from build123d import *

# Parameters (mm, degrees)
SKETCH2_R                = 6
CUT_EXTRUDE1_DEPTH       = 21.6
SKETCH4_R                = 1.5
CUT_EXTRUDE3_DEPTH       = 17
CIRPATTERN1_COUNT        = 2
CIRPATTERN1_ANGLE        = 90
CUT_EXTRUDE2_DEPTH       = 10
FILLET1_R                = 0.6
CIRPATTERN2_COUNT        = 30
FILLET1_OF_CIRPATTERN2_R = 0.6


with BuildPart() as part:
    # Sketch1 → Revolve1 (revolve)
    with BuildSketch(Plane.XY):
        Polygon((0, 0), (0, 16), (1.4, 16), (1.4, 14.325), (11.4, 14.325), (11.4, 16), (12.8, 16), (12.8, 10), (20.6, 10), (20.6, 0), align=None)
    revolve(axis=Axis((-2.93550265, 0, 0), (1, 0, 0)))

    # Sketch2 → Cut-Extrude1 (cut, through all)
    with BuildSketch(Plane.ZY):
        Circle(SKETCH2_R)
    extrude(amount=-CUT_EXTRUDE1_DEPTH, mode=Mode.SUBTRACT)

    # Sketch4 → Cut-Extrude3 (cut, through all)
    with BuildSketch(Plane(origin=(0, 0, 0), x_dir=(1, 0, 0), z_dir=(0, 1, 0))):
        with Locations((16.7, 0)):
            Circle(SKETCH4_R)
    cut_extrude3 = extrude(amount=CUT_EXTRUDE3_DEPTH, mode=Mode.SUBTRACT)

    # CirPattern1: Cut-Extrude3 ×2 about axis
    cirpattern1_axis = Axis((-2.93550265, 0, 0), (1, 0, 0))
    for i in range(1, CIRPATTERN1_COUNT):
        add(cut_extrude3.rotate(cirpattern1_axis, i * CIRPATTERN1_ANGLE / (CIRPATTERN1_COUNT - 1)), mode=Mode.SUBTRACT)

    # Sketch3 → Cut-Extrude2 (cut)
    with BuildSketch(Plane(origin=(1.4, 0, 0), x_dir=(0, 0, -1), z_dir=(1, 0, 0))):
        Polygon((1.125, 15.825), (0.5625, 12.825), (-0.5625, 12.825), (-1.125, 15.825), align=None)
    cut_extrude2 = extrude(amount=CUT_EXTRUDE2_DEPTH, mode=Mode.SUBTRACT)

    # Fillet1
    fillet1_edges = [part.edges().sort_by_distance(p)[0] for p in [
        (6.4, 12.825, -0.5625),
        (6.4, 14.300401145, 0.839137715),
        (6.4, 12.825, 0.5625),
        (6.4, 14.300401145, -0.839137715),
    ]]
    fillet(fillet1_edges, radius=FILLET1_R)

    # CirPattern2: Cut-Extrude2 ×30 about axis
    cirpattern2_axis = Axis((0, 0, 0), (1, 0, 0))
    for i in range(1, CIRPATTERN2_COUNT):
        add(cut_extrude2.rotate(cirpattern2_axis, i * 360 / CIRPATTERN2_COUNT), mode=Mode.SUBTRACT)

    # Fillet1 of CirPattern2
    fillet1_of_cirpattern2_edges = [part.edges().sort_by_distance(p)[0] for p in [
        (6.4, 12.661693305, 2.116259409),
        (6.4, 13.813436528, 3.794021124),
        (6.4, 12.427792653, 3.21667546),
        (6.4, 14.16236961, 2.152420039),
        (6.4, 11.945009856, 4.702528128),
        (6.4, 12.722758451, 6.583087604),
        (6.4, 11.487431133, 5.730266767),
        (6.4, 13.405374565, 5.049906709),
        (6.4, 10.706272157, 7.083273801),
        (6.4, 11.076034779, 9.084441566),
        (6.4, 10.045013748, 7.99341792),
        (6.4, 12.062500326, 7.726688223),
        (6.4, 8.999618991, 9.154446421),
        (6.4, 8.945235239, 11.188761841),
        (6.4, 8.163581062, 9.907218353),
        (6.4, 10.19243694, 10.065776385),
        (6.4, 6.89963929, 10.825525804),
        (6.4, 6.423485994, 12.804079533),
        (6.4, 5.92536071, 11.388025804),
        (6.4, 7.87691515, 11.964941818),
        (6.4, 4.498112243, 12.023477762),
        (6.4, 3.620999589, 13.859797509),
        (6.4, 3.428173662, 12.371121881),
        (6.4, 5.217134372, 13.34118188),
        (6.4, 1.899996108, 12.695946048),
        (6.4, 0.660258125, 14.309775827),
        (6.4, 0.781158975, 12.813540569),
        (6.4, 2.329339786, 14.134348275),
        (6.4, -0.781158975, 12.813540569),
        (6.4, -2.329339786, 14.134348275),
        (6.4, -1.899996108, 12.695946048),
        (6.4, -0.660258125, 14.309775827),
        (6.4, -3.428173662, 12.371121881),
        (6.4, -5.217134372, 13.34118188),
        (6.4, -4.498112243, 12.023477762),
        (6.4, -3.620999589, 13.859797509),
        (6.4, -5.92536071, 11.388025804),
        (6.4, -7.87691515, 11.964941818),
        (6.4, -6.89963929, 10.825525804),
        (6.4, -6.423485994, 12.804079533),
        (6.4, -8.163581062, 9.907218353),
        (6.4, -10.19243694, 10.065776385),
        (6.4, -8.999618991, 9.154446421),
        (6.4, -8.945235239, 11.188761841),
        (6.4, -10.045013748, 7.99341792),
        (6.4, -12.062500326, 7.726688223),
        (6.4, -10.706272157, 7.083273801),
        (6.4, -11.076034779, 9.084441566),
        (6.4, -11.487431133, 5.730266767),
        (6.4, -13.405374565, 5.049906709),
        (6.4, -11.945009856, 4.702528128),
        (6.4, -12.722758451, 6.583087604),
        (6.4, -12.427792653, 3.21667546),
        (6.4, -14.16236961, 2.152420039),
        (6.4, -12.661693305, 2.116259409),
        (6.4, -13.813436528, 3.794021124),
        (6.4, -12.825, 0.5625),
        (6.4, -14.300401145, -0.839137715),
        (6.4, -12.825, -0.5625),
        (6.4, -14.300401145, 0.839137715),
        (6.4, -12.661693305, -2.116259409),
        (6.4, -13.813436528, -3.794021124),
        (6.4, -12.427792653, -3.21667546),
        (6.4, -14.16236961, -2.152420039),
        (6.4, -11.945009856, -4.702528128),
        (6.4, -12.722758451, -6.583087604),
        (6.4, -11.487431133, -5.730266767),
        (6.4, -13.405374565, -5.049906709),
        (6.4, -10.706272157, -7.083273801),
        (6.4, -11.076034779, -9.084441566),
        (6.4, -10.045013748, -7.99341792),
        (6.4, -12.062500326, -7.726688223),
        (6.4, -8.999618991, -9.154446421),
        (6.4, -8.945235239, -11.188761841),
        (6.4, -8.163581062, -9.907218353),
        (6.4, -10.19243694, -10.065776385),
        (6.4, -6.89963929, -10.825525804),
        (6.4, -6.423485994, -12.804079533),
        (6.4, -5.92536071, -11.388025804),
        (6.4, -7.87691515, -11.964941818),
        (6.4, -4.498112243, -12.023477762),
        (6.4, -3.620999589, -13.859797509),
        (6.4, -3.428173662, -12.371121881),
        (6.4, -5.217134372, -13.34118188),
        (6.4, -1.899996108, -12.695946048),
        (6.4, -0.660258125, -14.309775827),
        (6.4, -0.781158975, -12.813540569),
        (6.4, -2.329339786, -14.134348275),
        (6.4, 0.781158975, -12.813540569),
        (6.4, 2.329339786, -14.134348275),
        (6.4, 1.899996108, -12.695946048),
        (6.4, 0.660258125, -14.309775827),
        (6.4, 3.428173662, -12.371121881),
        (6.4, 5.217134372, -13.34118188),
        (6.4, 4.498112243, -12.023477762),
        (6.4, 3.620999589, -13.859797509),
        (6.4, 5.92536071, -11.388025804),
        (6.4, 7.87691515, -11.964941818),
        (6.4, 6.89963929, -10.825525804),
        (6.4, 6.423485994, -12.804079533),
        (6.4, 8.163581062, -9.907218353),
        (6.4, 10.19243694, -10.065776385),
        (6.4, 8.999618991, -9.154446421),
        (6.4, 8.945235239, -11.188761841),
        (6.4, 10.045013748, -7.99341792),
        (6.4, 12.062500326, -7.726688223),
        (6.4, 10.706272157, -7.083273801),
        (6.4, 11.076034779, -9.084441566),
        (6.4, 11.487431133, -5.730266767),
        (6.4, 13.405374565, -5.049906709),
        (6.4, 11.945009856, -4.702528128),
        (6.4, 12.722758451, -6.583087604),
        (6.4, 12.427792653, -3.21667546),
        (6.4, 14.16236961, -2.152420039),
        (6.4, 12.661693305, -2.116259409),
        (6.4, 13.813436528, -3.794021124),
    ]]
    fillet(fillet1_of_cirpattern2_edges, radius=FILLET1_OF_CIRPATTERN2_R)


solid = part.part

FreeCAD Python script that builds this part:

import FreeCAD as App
import Part
import Sketcher
from FreeCAD import Vector


def edges_at(feature, points):
    """Names of the edges that pass closest to the given points."""
    edges = feature.Shape.Edges
    near = lambda p: min(range(len(edges)), key=lambda i: edges[i].distToShape(Part.Vertex(*p))[0])
    return sorted({f"Edge{near(p) + 1}" for p in points})


def add_polygon(sketch, points):
    """Adds a closed chain of lines whose ends are joined by coincident constraints."""
    first, n = sketch.GeometryCount, len(points)
    for a, b in zip(points, points[1:] + points[:1]):
        sketch.addGeometry(Part.LineSegment(App.Vector(*a, 0), App.Vector(*b, 0)), False)
    for i in range(n):
        sketch.addConstraint(Sketcher.Constraint("Coincident", first + i, 2, first + (i + 1) % n, 1))

doc = App.newDocument("Part")
body = doc.addObject("PartDesign::Body", "Body")

sketch1 = body.newObject("Sketcher::SketchObject", "Sketch")
sketch1.AttachmentSupport = (doc.getObject("XY_Plane"), [""])
sketch1.MapMode = "FlatFace"
add_polygon(sketch1, [(0, 16), (0, 0), (20.6, 0), (20.6, 10), (12.8, 10), (12.8, 16), (11.4, 16), (11.4, 14.3), (1.4, 14.3), (1.4, 16)])
sketch1.addConstraint(Sketcher.Constraint("Vertical", 0))
sketch1.addConstraint(Sketcher.Constraint("Horizontal", 1))
sketch1.addConstraint(Sketcher.Constraint("Vertical", 2))
sketch1.addConstraint(Sketcher.Constraint("Horizontal", 3))
sketch1.addConstraint(Sketcher.Constraint("Vertical", 4))
sketch1.addConstraint(Sketcher.Constraint("Horizontal", 5))
sketch1.addConstraint(Sketcher.Constraint("Vertical", 6))
sketch1.addConstraint(Sketcher.Constraint("Horizontal", 7))
sketch1.addConstraint(Sketcher.Constraint("Vertical", 8))
sketch1.addConstraint(Sketcher.Constraint("Horizontal", 9))
sketch1.addConstraint(Sketcher.Constraint("Coincident", 0, 2, -1, 1))
sketch1.addConstraint(Sketcher.Constraint("Horizontal", 5, 2, 8, 2))
sketch1.addConstraint(Sketcher.Constraint("Equal", 5, 9))
sketch1.addConstraint(Sketcher.Constraint("Equal", 7, 2))
sketch1.addConstraint(Sketcher.Constraint("DistanceX", 7, 2, 7, 1, 10.0))
sketch1.addConstraint(Sketcher.Constraint("DistanceY", 0, 2, 0, 1, 16.0))
sketch1.addConstraint(Sketcher.Constraint("DistanceX", 1, 1, 1, 2, 20.6))
sketch1.addConstraint(Sketcher.Constraint("DistanceX", 3, 2, 3, 1, 7.8))
sketch1.addConstraint(Sketcher.Constraint("DistanceY", 6, 2, 6, 1, 1.675))
revolution = body.newObject("PartDesign::Revolution", "Revolution")
revolution.Profile = sketch1
revolution.ReferenceAxis = (sketch1, ["H_Axis"])
revolution.Angle = 360

sketch2 = body.newObject("Sketcher::SketchObject", "Sketch001")
sketch2.AttachmentSupport = (doc.getObject("YZ_Plane"), [""])
sketch2.MapMode = "FlatFace"
sketch2.addGeometry(Part.Circle(Vector(0, 0, 0), Vector(0, 0, 1), 6), False)
sketch2.addConstraint(Sketcher.Constraint("Coincident", 0, 3, -1, 1))
sketch2.addConstraint(Sketcher.Constraint("Diameter", 0, 12.0))
pocket1 = body.newObject("PartDesign::Pocket", "Pocket")
pocket1.Profile = sketch2
pocket1.Type = "ThroughAll"
pocket1.Reversed = True

sketch3 = body.newObject("Sketcher::SketchObject", "Sketch002")
sketch3.AttachmentSupport = (doc.getObject("XZ_Plane"), [""])
sketch3.MapMode = "FlatFace"
sketch3.addGeometry(Part.Circle(Vector(16.7, 0, 0), Vector(0, 0, 1), 1.5), False)
sketch3.addConstraint(Sketcher.Constraint("PointOnObject", 0, 3, -1))
sketch3.addConstraint(Sketcher.Constraint("Diameter", 0, 3.0))
sketch3.addConstraint(Sketcher.Constraint("DistanceX", -1, 1, 0, 3, 16.7))
pocket2 = body.newObject("PartDesign::Pocket", "Pocket001")
pocket2.Profile = sketch3
pocket2.Type = "ThroughAll"
doc.recompute()

polarpattern = body.newObject("PartDesign::PolarPattern", "PolarPattern")
polarpattern.Originals = [pocket2]
polarpattern.Axis = (doc.getObject("X_Axis"), [""])
polarpattern.Angle = 90
polarpattern.Occurrences = 2
body.Tip = polarpattern

sketch4 = body.newObject("Sketcher::SketchObject", "Sketch003")
sketch4.AttachmentSupport = (doc.getObject("YZ_Plane"), [""])
sketch4.MapMode = "FlatFace"
sketch4.AttachmentOffset = App.Placement(Vector(0, 0, 1.4), App.Rotation())
add_polygon(sketch4, [(12.8, -0.6), (15.8, -1.1), (15.8, 1.1), (12.8, 0.6)])
sketch4.addConstraint(Sketcher.Constraint("Vertical", 1))
sketch4.addConstraint(Sketcher.Constraint("Vertical", 3))
sketch4.addConstraint(Sketcher.Constraint("Equal", 0, 2))
sketch4.addConstraint(Sketcher.Constraint("DistanceX", 2, 2, 1, 2, 3.0))
sketch4.addConstraint(Sketcher.Constraint("DistanceY", 1, 1, 1, 2, 2.25))
sketch4.addConstraint(Sketcher.Constraint("DistanceY", 3, 2, 3, 1, 1.125))
sketch4.addConstraint(Sketcher.Constraint("DistanceX", -1, 1, 0, 2, 15.825))
sketch4.addConstraint(Sketcher.Constraint("DistanceY", 0, 2, -1, 1, 1.125))
pocket3 = body.newObject("PartDesign::Pocket", "Pocket002")
pocket3.Profile = sketch4
pocket3.Length = 10
pocket3.Reversed = True
doc.recompute()

fillet = body.newObject("PartDesign::Fillet", "Fillet")
fillet.Base = (pocket3, edges_at(pocket3, [
    (6.4, 12.825, -0.562),
    (6.4, 14.3, 0.839),
    (6.4, 12.825, 0.562),
    (6.4, 14.3, -0.839),
]))
fillet.Radius = 0.6
doc.recompute()

polarpattern2 = body.newObject("PartDesign::PolarPattern", "PolarPattern001")
polarpattern2.Originals = [pocket3]
polarpattern2.Axis = (doc.getObject("X_Axis"), [""])
polarpattern2.Angle = 360
polarpattern2.Occurrences = 30
body.Tip = polarpattern2
doc.recompute()

fillet2 = body.newObject("PartDesign::Fillet", "Fillet001")
fillet2.Base = (polarpattern2, edges_at(polarpattern2, [
    (6.4, 12.662, 2.116),
    (6.4, 13.813, 3.794),
    (6.4, 12.428, 3.217),
    (6.4, 14.162, 2.152),
    (6.4, 11.945, 4.703),
    (6.4, 12.723, 6.583),
    (6.4, 11.487, 5.73),
    (6.4, 13.405, 5.05),
    (6.4, 10.706, 7.083),
    (6.4, 11.076, 9.084),
    (6.4, 10.045, 7.993),
    (6.4, 12.063, 7.727),
    (6.4, 9, 9.154),
    (6.4, 8.945, 11.189),
    (6.4, 8.164, 9.907),
    (6.4, 10.192, 10.066),
    (6.4, 6.9, 10.826),
    (6.4, 6.423, 12.804),
    (6.4, 5.925, 11.388),
    (6.4, 7.877, 11.965),
    (6.4, 4.498, 12.023),
    (6.4, 3.621, 13.86),
    (6.4, 3.428, 12.371),
    (6.4, 5.217, 13.341),
    (6.4, 1.9, 12.696),
    (6.4, 0.66, 14.31),
    (6.4, 0.781, 12.814),
    (6.4, 2.329, 14.134),
    (6.4, -0.781, 12.814),
    (6.4, -2.329, 14.134),
    (6.4, -1.9, 12.696),
    (6.4, -0.66, 14.31),
    (6.4, -3.428, 12.371),
    (6.4, -5.217, 13.341),
    (6.4, -4.498, 12.023),
    (6.4, -3.621, 13.86),
    (6.4, -5.925, 11.388),
    (6.4, -7.877, 11.965),
    (6.4, -6.9, 10.826),
    (6.4, -6.423, 12.804),
    (6.4, -8.164, 9.907),
    (6.4, -10.192, 10.066),
    (6.4, -9, 9.154),
    (6.4, -8.945, 11.189),
    (6.4, -10.045, 7.993),
    (6.4, -12.063, 7.727),
    (6.4, -10.706, 7.083),
    (6.4, -11.076, 9.084),
    (6.4, -11.487, 5.73),
    (6.4, -13.405, 5.05),
    (6.4, -11.945, 4.703),
    (6.4, -12.723, 6.583),
    (6.4, -12.428, 3.217),
    (6.4, -14.162, 2.152),
    (6.4, -12.662, 2.116),
    (6.4, -13.813, 3.794),
    (6.4, -12.825, 0.562),
    (6.4, -14.3, -0.839),
    (6.4, -12.825, -0.562),
    (6.4, -14.3, 0.839),
    (6.4, -12.662, -2.116),
    (6.4, -13.813, -3.794),
    (6.4, -12.428, -3.217),
    (6.4, -14.162, -2.152),
    (6.4, -11.945, -4.703),
    (6.4, -12.723, -6.583),
    (6.4, -11.487, -5.73),
    (6.4, -13.405, -5.05),
    (6.4, -10.706, -7.083),
    (6.4, -11.076, -9.084),
    (6.4, -10.045, -7.993),
    (6.4, -12.063, -7.727),
    (6.4, -9, -9.154),
    (6.4, -8.945, -11.189),
    (6.4, -8.164, -9.907),
    (6.4, -10.192, -10.066),
    (6.4, -6.9, -10.826),
    (6.4, -6.423, -12.804),
    (6.4, -5.925, -11.388),
    (6.4, -7.877, -11.965),
    (6.4, -4.498, -12.023),
    (6.4, -3.621, -13.86),
    (6.4, -3.428, -12.371),
    (6.4, -5.217, -13.341),
    (6.4, -1.9, -12.696),
    (6.4, -0.66, -14.31),
    (6.4, -0.781, -12.814),
    (6.4, -2.329, -14.134),
    (6.4, 0.781, -12.814),
    (6.4, 2.329, -14.134),
    (6.4, 1.9, -12.696),
    (6.4, 0.66, -14.31),
    (6.4, 3.428, -12.371),
    (6.4, 5.217, -13.341),
    (6.4, 4.498, -12.023),
    (6.4, 3.621, -13.86),
    (6.4, 5.925, -11.388),
    (6.4, 7.877, -11.965),
    (6.4, 6.9, -10.826),
    (6.4, 6.423, -12.804),
    (6.4, 8.164, -9.907),
    (6.4, 10.192, -10.066),
    (6.4, 9, -9.154),
    (6.4, 8.945, -11.189),
    (6.4, 10.045, -7.993),
    (6.4, 12.063, -7.727),
    (6.4, 10.706, -7.083),
    (6.4, 11.076, -9.084),
    (6.4, 11.487, -5.73),
    (6.4, 13.405, -5.05),
    (6.4, 11.945, -4.703),
    (6.4, 12.723, -6.583),
    (6.4, 12.428, -3.217),
    (6.4, 14.162, -2.152),
    (6.4, 12.662, -2.116),
    (6.4, 13.813, -3.794),
]))
fillet2.Radius = 0.6

doc.recompute()
